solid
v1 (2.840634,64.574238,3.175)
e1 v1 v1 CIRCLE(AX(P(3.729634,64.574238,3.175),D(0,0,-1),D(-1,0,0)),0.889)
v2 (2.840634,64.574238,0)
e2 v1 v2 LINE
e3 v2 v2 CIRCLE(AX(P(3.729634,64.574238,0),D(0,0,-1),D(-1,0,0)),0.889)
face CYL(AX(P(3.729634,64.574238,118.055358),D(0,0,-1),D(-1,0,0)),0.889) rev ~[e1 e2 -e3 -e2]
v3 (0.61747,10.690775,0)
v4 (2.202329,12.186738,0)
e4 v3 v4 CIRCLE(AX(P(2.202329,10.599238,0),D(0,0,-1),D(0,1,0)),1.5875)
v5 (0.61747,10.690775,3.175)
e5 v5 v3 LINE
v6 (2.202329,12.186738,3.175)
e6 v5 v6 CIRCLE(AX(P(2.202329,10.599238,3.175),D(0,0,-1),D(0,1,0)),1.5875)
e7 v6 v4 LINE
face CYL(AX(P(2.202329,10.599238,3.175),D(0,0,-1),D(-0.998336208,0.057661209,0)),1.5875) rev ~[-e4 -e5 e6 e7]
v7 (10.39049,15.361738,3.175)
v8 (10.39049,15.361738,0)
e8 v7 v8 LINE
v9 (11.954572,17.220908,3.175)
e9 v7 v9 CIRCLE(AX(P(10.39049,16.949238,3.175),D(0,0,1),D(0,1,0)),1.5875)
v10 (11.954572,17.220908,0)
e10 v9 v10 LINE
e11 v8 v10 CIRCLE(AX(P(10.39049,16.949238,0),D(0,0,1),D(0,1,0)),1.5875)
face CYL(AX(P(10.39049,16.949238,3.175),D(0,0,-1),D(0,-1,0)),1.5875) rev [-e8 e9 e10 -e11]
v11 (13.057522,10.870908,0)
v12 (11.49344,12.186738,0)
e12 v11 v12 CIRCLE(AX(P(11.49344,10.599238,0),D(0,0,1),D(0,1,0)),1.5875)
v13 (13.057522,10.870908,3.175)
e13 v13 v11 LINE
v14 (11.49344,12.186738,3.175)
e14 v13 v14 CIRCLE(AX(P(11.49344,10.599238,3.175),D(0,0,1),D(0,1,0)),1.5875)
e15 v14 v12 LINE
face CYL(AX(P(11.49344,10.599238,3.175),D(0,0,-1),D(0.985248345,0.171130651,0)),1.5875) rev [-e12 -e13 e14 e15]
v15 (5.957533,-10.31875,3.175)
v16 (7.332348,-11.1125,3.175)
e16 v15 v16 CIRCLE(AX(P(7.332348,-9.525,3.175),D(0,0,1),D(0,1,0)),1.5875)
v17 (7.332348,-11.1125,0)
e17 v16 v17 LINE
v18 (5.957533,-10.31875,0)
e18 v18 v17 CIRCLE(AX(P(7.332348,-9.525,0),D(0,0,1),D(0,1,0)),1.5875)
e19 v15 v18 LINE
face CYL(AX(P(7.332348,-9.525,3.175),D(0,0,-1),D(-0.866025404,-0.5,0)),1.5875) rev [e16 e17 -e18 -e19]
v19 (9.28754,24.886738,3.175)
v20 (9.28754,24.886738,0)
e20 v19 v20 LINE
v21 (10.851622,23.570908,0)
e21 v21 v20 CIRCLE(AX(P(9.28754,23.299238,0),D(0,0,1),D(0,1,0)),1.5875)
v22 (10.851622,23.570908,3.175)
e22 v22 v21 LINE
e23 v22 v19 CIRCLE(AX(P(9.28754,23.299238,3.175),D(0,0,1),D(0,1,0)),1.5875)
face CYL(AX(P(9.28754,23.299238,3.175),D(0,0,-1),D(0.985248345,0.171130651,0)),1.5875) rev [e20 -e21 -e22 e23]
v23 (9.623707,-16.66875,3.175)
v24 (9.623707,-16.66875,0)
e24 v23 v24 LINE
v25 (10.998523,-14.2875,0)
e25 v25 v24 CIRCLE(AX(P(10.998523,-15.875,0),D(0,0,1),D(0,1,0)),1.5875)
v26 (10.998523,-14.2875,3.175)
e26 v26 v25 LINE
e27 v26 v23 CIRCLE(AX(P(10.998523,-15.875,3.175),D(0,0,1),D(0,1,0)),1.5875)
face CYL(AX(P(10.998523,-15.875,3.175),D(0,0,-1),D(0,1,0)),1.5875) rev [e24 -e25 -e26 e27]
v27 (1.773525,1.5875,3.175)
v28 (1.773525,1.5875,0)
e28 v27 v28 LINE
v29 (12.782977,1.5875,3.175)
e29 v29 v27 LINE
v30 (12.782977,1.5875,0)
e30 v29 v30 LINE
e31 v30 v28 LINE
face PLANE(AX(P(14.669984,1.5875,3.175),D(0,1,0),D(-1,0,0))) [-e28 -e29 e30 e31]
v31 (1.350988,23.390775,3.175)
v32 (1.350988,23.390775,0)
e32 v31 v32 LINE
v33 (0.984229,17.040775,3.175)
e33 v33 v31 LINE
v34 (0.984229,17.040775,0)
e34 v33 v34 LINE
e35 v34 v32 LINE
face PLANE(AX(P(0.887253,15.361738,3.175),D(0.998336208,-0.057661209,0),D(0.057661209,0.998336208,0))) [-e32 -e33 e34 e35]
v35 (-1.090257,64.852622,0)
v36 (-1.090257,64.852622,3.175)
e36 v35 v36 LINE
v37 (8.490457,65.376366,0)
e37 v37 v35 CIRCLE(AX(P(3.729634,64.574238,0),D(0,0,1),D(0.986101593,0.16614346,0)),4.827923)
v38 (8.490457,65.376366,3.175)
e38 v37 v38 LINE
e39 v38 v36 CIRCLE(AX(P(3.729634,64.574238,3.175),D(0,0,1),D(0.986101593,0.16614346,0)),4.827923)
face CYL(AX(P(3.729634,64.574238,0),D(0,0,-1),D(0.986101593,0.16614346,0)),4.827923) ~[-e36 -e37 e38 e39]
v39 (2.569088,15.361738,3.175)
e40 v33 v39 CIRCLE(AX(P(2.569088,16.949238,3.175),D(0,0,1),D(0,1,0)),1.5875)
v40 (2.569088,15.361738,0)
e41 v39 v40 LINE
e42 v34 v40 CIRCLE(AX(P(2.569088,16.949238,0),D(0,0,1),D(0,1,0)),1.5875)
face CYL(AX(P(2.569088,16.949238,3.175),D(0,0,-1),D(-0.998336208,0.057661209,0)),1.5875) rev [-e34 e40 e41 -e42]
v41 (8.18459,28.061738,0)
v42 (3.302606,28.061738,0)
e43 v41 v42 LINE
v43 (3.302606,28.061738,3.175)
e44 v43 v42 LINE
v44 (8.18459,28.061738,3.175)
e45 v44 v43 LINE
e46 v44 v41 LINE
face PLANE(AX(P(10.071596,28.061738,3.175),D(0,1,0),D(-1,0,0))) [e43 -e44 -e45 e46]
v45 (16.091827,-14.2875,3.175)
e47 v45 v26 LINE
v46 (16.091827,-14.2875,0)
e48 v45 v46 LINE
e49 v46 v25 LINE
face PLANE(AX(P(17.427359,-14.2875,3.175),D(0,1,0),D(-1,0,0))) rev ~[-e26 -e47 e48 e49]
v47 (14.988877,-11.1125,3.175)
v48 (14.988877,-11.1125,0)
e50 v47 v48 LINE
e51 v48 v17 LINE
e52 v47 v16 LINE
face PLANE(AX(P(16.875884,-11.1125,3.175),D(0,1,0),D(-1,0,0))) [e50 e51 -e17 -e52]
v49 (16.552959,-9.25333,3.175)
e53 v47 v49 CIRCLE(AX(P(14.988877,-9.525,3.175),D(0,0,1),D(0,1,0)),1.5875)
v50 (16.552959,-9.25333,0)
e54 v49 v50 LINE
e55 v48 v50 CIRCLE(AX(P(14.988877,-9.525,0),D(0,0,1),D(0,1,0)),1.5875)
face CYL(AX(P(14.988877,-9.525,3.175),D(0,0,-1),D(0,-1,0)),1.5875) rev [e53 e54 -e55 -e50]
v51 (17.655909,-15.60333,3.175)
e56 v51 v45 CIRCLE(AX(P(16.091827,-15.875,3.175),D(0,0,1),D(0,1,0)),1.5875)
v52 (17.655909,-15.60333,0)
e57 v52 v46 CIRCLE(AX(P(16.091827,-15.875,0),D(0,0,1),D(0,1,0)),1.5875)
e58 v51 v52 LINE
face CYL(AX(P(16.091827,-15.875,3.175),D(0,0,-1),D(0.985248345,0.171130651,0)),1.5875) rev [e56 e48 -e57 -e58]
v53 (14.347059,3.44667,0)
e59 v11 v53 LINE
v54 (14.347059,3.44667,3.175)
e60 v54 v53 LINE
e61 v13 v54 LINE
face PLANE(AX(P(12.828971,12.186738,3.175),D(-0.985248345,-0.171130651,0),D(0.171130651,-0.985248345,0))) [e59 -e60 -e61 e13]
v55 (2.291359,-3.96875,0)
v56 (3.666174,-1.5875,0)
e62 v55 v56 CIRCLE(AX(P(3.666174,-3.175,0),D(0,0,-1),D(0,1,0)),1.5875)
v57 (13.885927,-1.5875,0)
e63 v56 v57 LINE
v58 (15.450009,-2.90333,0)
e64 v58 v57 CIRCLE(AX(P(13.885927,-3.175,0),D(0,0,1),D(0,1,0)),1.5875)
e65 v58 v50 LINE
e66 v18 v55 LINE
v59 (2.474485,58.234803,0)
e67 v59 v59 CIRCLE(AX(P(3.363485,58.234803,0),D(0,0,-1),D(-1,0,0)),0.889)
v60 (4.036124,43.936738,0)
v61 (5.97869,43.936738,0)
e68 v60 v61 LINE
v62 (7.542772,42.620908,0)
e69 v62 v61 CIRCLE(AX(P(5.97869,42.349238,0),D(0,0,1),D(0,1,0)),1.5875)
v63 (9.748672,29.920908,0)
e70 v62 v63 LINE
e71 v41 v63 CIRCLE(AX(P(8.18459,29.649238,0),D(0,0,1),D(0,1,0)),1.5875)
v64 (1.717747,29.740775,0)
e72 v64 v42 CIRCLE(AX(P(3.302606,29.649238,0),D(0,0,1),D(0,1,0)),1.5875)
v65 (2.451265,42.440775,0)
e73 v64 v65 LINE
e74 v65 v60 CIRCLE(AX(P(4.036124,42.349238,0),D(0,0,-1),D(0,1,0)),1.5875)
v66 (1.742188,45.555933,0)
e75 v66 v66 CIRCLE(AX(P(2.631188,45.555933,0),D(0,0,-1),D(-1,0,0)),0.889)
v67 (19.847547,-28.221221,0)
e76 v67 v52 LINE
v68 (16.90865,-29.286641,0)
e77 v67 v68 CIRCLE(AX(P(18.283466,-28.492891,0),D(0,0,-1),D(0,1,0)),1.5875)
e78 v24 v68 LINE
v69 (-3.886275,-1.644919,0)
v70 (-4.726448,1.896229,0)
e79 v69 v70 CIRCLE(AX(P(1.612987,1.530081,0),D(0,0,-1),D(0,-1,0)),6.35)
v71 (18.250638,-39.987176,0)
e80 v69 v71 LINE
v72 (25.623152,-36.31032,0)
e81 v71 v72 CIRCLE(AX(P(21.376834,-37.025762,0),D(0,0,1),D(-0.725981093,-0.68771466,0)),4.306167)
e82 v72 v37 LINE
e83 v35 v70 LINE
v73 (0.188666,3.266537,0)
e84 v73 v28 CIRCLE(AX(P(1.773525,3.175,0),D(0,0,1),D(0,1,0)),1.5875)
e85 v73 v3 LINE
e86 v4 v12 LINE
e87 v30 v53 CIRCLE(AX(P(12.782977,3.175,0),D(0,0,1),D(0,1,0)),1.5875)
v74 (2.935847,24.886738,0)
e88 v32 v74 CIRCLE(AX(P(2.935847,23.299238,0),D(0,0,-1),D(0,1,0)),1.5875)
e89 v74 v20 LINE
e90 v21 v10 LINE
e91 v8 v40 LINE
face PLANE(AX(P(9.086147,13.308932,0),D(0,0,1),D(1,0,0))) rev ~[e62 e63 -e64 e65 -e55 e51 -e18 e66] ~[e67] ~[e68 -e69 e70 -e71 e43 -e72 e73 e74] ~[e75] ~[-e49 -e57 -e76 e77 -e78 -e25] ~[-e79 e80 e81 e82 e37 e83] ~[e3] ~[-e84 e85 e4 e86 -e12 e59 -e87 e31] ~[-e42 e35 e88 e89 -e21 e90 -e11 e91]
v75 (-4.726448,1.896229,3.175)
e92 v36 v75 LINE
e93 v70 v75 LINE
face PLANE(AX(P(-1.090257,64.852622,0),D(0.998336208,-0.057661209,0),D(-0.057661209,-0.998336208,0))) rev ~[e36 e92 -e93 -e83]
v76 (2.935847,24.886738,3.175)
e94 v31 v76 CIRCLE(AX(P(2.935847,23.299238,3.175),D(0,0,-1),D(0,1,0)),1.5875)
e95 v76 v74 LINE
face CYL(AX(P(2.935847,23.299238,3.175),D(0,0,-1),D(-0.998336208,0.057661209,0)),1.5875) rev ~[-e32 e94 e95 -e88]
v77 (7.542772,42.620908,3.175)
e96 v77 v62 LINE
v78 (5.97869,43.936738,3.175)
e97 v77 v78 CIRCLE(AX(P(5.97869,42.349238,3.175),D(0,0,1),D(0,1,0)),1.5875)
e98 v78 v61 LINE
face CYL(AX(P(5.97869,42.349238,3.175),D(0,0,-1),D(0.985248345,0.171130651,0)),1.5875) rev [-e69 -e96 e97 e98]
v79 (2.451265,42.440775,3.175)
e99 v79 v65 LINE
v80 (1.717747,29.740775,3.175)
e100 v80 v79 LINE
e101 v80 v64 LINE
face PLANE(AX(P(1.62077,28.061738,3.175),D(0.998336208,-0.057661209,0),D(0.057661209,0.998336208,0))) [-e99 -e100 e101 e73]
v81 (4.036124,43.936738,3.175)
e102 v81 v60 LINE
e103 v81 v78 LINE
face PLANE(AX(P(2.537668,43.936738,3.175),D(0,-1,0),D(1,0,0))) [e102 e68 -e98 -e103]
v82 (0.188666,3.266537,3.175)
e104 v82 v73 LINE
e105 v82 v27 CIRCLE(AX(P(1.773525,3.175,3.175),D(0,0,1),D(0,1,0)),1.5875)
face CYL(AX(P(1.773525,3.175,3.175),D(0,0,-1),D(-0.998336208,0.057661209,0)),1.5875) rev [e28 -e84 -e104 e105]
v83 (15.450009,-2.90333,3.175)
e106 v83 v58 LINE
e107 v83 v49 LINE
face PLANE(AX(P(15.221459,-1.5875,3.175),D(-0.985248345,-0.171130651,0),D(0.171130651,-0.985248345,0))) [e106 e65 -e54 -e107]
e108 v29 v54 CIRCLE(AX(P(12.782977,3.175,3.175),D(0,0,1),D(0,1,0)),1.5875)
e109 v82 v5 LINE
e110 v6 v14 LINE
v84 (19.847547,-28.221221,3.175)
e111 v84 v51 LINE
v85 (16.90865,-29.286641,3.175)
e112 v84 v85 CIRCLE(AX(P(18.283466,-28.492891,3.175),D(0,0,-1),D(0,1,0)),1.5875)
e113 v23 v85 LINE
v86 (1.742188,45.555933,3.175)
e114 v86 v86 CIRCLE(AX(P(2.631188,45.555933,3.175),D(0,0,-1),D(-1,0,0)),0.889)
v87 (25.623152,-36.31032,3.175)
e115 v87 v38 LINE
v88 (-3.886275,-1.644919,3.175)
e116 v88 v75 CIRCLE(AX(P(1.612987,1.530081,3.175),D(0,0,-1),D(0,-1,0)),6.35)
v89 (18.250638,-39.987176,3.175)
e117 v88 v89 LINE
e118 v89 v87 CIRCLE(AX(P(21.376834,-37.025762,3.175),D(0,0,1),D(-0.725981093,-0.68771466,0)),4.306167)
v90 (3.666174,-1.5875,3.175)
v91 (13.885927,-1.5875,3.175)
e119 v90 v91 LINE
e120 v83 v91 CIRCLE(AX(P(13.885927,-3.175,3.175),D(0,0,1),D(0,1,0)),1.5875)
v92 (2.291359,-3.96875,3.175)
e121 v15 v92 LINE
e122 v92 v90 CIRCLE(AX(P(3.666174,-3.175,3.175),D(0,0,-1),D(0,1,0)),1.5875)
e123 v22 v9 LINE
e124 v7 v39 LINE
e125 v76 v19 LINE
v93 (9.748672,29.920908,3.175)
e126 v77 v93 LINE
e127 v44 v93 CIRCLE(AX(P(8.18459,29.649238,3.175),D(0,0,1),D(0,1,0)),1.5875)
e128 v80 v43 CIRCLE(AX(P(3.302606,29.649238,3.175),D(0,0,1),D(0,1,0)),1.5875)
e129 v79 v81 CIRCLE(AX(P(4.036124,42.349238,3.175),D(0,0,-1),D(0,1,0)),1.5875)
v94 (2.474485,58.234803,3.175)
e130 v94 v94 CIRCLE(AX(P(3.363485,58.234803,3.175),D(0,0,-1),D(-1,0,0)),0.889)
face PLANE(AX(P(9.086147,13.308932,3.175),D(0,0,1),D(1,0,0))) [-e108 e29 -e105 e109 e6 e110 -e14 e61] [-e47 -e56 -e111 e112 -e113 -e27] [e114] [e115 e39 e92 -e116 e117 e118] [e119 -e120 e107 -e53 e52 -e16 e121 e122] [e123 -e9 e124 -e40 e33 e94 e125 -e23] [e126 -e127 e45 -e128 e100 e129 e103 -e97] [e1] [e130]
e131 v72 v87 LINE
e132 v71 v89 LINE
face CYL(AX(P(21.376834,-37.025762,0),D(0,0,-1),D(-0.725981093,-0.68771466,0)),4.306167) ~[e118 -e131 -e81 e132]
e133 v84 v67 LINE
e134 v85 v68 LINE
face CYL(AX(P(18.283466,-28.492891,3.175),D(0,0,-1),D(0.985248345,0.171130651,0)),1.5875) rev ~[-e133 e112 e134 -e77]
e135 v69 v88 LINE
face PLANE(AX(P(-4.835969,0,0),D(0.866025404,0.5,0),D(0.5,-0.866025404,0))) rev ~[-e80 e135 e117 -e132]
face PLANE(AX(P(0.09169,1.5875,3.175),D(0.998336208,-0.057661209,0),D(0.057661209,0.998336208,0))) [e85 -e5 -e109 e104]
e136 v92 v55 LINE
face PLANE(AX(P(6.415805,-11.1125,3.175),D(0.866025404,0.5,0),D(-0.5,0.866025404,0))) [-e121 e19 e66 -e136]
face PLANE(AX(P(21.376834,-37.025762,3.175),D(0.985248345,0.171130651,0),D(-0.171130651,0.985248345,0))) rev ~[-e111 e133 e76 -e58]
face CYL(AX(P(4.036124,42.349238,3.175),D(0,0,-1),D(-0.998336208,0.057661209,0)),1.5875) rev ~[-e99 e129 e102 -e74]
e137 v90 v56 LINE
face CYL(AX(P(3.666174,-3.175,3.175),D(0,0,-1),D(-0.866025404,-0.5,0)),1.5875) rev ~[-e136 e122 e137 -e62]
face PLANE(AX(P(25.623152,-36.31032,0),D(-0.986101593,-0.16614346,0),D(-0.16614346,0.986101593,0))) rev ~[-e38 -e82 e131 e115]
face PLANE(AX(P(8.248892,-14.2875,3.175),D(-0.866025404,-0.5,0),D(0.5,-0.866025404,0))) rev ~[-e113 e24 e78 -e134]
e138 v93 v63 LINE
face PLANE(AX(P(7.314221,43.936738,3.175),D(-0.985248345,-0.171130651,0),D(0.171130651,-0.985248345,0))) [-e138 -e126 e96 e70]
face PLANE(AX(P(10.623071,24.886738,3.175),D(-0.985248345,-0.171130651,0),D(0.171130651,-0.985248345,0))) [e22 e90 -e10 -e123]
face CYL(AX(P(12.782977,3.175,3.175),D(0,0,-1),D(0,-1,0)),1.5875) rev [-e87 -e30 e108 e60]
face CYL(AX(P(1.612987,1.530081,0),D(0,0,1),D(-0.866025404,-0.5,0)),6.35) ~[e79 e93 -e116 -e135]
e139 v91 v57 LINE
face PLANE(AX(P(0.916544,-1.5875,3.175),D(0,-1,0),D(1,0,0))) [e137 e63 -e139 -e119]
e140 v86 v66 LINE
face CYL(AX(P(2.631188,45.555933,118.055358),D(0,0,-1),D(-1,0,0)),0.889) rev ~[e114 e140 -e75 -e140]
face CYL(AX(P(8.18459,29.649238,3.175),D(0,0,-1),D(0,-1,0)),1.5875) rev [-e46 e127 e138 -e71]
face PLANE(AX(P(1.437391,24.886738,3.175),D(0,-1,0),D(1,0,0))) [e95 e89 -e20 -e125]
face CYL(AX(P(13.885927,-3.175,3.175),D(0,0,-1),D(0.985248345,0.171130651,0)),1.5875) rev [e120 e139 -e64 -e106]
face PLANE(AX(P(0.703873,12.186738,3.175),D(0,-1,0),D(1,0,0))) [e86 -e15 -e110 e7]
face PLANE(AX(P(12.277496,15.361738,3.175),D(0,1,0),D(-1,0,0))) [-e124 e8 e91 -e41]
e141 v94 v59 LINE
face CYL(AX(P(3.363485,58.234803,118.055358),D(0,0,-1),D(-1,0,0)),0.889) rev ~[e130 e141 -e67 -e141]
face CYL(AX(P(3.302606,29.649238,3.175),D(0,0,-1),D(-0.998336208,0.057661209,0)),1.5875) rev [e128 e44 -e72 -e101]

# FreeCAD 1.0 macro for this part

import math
import FreeCAD as App
import Part
import Sketcher

V = App.Vector
Q = App.Units.Quantity


def edges_at(feature, points):
    """Names of the edges that pass closest to the given points."""
    edges = feature.Shape.Edges
    near = lambda p: min(range(len(edges)), key=lambda i: edges[i].distToShape(Part.Vertex(*p))[0])
    return sorted({f"Edge{near(p) + 1}" for p in points})


def add_polygon(sketch, points):
    """Adds a closed chain of lines whose ends are joined by coincident constraints."""
    first, n = sketch.GeometryCount, len(points)
    for a, b in zip(points, points[1:] + points[:1]):
        sketch.addGeometry(Part.LineSegment(App.Vector(*a, 0), App.Vector(*b, 0)), False)
    for i in range(n):
        sketch.addConstraint(Sketcher.Constraint("Coincident", first + i, 2, first + (i + 1) % n, 1))

doc = App.newDocument("Part")
params = doc.addObject("Spreadsheet::Sheet", "Params")
for row, (alias, value) in enumerate([
    ("pad1_length", "0.125 in"),
    ("fillet_radius", "0.25 in"),
    ("sketch2_diameter", "0.07 in"),
    ("hole_diameter", "0.07 in"),
    ("fillet2_radius", "0.0625 in"),
], start=1):
    params.set(f"A{row}", alias)
    params.set(f"B{row}", "=" + value)
    params.setAlias(f"B{row}", alias)

body = doc.addObject("PartDesign::Body", "Body")

# Sketch on XY plane
sketch1 = body.newObject("Sketcher::SketchObject", "Sketch")
sketch1.AttachmentSupport = (doc.getObject("XY_Plane"), [""])
sketch1.MapMode = "FlatFace"
sketch1.addGeometry([
    Part.LineSegment(V(-4.8, 0, 0), V(18.3, -40, 0)),  # 0
    Part.ArcOfCircle(Part.Circle(V(21.4, -37, 0), V(0, 0, 1), 4.3), math.radians(-137), math.radians(10)),  # 1
    Part.LineSegment(V(25.6, -36.3, 0), V(8.5, 65.4, 0)),  # 2
    Part.ArcOfCircle(Part.Circle(V(3.7, 64.6, 0), V(0, 0, 1), 4.8), math.radians(10), math.radians(177)),  # 3
    Part.LineSegment(V(-1.1, 64.9, 0), V(-4.8, 0, 0)),  # 4
], False)
sketch1.addConstraint([
    Sketcher.Constraint("Coincident", 0, 2, 1, 1),
    Sketcher.Constraint("Tangent", 1, 2, 2, 1),
    Sketcher.Constraint("Tangent", 2, 2, 3, 1),
    Sketcher.Constraint("Tangent", 3, 2, 4, 1),
    Sketcher.Constraint("Coincident", 4, 2, 0, 1),
    Sketcher.Constraint("PointOnObject", 4, 2, -1),
    Sketcher.Constraint("Angle", 0, Q("-60 deg")),
    Sketcher.Constraint("DistanceY", 1, 3, 3, 3, Q("4 in")),
    Sketcher.Constraint("DistanceX", 4, 2, 1, 3, Q("1.0320001 in")),
    Sketcher.Constraint("Radius", 1, 4.306167),
    Sketcher.Constraint("Radius", 3, 4.827923),
    Sketcher.Constraint("DistanceX", 3, 3, 1, 3, 17.6472),
    Sketcher.Constraint("DistanceY", 0, 2, 3, 2, 104.839798),
    Sketcher.Constraint("DistanceX", -1, 1, 1, 2, 25.623152),
])
pad1 = body.newObject("PartDesign::Pad", "Pad")
pad1.Profile = sketch1
pad1.setExpression("Length", "Params.pad1_length")
doc.recompute()

fillet = body.newObject("PartDesign::Fillet", "Fillet")
fillet.Base = (pad1, edges_at(pad1, [(-4.836, 0, 1.587)]))
fillet.setExpression("Radius", "Params.fillet_radius")

# Sketch on XY plane
sketch2 = body.newObject("Sketcher::SketchObject", "Sketch001")
sketch2.AttachmentSupport = (doc.getObject("XY_Plane"), [""])
sketch2.MapMode = "FlatFace"
sketch2.AttachmentOffset = App.Placement(V(0, 0, 0.125 * 25.4), App.Rotation())
sketch2.addGeometry([
    Part.Circle(V(2.6, 45.6, 0), V(0, 0, 1), 0.9),
    Part.Circle(V(3.4, 58.2, 0), V(0, 0, 1), 0.9),
    Part.Circle(V(3.7, 64.6, 0), V(0, 0, 1), 0.9),
], False)
sketch2.addConstraint([
    Sketcher.Constraint("Equal", 0, 1),
    Sketcher.Constraint("Equal", 1, 2),
    Sketcher.Constraint("Diameter", 0, Q("0.07 in")),
    Sketcher.Constraint("DistanceY", -1, 1, 2, 3, 64.574238),
    Sketcher.Constraint("DistanceY", 0, 3, 1, 3, 12.67887),
    Sketcher.Constraint("DistanceX", 1, 3, 2, 3, 0.366149),
    Sketcher.Constraint("DistanceX", -1, 1, 0, 3, 2.631188),
    Sketcher.Constraint("DistanceY", -1, 1, 0, 3, 45.555933),
    Sketcher.Constraint("DistanceX", -1, 1, 1, 3, 3.363485),
])
sketch2.setExpression("Constraints[2]", "Params.sketch2_diameter")
doc.recompute()
hole = body.newObject("PartDesign::Hole", "Hole")
hole.Profile = sketch2
hole.ThreadType = "None"
hole.setExpression("Diameter", "Params.hole_diameter")
hole.DepthType = "ThroughAll"

# Sketch on XY plane
sketch3 = body.newObject("Sketcher::SketchObject", "Sketch002")
sketch3.AttachmentSupport = (doc.getObject("XY_Plane"), [""])
sketch3.MapMode = "FlatFace"
sketch3.AttachmentOffset = App.Placement(V(0, 0, 0.125 * 25.4), App.Rotation())
add_polygon(sketch3, [(7.3, 43.9), (2.5, 43.9), (1.6, 28.1), (10.1, 28.1)])  # lines 0-3
add_polygon(sketch3, [(10.6, 24.9), (1.4, 24.9), (0.9, 15.4), (12.3, 15.4)])  # lines 4-7
add_polygon(sketch3, [(12.8, 12.2), (0.7, 12.2), (0.1, 1.6), (14.7, 1.6)])  # lines 8-11
add_polygon(sketch3, [(15.2, -1.6), (0.9, -1.6), (6.4, -11.1), (16.9, -11.1)])  # lines 12-15
add_polygon(sketch3, [(21.4, -37), (17.4, -14.3), (8.2, -14.3)])  # lines 16-18
sketch3.addConstraint([
    Sketcher.Constraint("Horizontal", 0),
    Sketcher.Constraint("Horizontal", 2),
    Sketcher.Constraint("Horizontal", 4),
    Sketcher.Constraint("Horizontal", 6),
    Sketcher.Constraint("Horizontal", 8),
    Sketcher.Constraint("Horizontal", 10),
    Sketcher.Constraint("Horizontal", 12),
    Sketcher.Constraint("Horizontal", 14),
    Sketcher.Constraint("Horizontal", 17),
    Sketcher.Constraint("Parallel", 1, 5),
    Sketcher.Constraint("Parallel", 3, 7),
    Sketcher.Constraint("Parallel", 5, 9),
    Sketcher.Constraint("Parallel", 7, 11),
    Sketcher.Constraint("Parallel", 11, 15),
    Sketcher.Constraint("Parallel", 15, 16),
    Sketcher.Constraint("Parallel", 13, 18),
    Sketcher.Constraint("Equal", 7, 15),
    Sketcher.Constraint("Angle", 13, Q("-60 deg")),
    Sketcher.Constraint("DistanceY", 5, 2, 1, 2, Q("0.5 in")),
    Sketcher.Constraint("DistanceY", 8, 2, 4, 2, Q("0.5 in")),
    Sketcher.Constraint("DistanceY", 13, 2, 9, 2, Q("0.5 in")),
    Sketcher.Constraint("DistanceY", 16, 2, 15, 2, Q("0.5 in")),
    Sketcher.Constraint("DistanceY", 4, 2, 0, 2, Q("0.75 in")),
    Sketcher.Constraint("DistanceY", -1, 1, 9, 2, Q("0.0625 in")),
    Sketcher.Constraint("DistanceY", 12, 2, -1, 1, Q("0.0625 in")),
    Sketcher.Constraint("DistanceX", 8, 2, 8, 1, 12.125098),
    Sketcher.Constraint("DistanceX", 5, 2, 7, 2, Q("0.3832999 in")),
    Sketcher.Constraint("DistanceX", 4, 2, 4, 1, 9.18568),
    Sketcher.Constraint("DistanceX", 14, 1, 14, 2, 10.460079),
    Sketcher.Constraint("DistanceX", 2, 2, 6, 2, 2.2059),
    Sketcher.Constraint("DistanceX", 1, 2, 7, 2, 9.002301),
    Sketcher.Constraint("DistanceX", 8, 2, 7, 2, 9.919198),
    Sketcher.Constraint("DistanceX", 9, 2, 4, 2, 1.345701),
    Sketcher.Constraint("DistanceX", 10, 2, 14, 2, 2.2059),
    Sketcher.Constraint("DistanceX", 15, 2, 16, 2, 2.2059),
    Sketcher.Constraint("Distance", 3, 16.112689),
    Sketcher.Constraint("Distance", 16, 23.078711),
    Sketcher.Constraint("DistanceX", -1, 1, 1, 2, 1.62077),
])
pocket1 = body.newObject("PartDesign::Pocket", "Pocket")
pocket1.Profile = sketch3
pocket1.Type = "ThroughAll"
doc.recompute()

fillet2 = body.newObject("PartDesign::Fillet", "Fillet001")
fillet2.Base = (pocket1, edges_at(pocket1, [
    (1.621, 28.062, 1.587),
    (2.538, 43.937, 1.587),
    (7.314, 43.937, 1.587),
    (10.072, 28.062, 1.587),
    (6.416, -11.113, 1.587),
    (0.917, -1.587, 1.587),
    (15.221, -1.587, 1.587),
    (16.876, -11.113, 1.587),
    (0.092, 1.587, 1.587),
    (0.704, 12.187, 1.587),
    (12.829, 12.187, 1.587),
    (14.67, 1.587, 1.587),
    (0.887, 15.362, 1.587),
    (1.437, 24.887, 1.587),
    (10.623, 24.887, 1.587),
    (12.277, 15.362, 1.587),
    (21.377, -37.026, 1.587),
    (8.249, -14.287, 1.587),
    (17.427, -14.287, 1.587),
]))
fillet2.setExpression("Radius", "Params.fillet2_radius")

doc.recompute()
